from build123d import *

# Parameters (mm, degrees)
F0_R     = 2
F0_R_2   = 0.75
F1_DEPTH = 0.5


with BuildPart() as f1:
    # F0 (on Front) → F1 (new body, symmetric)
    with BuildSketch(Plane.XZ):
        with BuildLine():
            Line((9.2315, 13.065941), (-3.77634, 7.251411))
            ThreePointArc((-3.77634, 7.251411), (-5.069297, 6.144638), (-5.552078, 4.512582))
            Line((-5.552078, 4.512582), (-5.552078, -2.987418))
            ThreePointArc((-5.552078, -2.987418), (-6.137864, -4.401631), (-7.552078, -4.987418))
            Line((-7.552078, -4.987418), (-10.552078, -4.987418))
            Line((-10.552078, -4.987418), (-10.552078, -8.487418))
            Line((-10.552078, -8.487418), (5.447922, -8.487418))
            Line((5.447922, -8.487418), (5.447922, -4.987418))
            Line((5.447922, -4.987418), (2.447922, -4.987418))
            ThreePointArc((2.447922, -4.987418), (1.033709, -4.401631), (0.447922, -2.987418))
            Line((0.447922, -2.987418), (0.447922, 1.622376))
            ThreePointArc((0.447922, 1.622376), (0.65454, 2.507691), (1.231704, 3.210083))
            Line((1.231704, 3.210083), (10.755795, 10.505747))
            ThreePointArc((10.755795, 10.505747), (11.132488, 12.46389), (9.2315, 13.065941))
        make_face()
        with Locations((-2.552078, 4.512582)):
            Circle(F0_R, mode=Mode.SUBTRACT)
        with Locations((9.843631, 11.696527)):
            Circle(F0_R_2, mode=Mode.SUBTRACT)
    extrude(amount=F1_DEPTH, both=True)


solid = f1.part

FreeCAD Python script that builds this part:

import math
import FreeCAD as App
import Part
import Sketcher
from FreeCAD import Vector
Q = App.Units.Quantity

doc = App.newDocument("Part")
body = doc.addObject("PartDesign::Body", "Body")

# Sketch on XZ plane
sketch1 = doc.addObject("Sketcher::SketchObject", "Sketch")
body.addObject(sketch1)
sketch1.AttachmentSupport = (doc.XZ_Plane, [""])
sketch1.MapMode = "FlatFace"
sketch1.addGeometry([
    Part.LineSegment(Vector(9.2315, 13.065941, 0), Vector(-3.77634, 7.251411, 0)),  # 0
    Part.ArcOfCircle(Part.Circle(Vector(-2.552076, 4.512581, 0), Vector(0, 0, 1), 3.000002), math.radians(114.08477), math.radians(179.999976)),  # 1
    Part.LineSegment(Vector(-5.552078, 4.512582, 0), Vector(-5.552078, -2.987418, 0)),  # 2
    Part.ArcOfCircle(Part.Circle(Vector(-7.552078, -2.987418, 0), Vector(0, 0, 1), 2), math.radians(-89.999994), math.radians(-0.000006)),  # 3
    Part.LineSegment(Vector(-7.552078, -4.987418, 0), Vector(-10.552078, -4.987418, 0)),  # 4
    Part.LineSegment(Vector(-10.552078, -4.987418, 0), Vector(-10.552078, -8.487418, 0)),  # 5
    Part.LineSegment(Vector(-10.552078, -8.487418, 0), Vector(5.447922, -8.487418, 0)),  # 6
    Part.LineSegment(Vector(5.447922, -8.487418, 0), Vector(5.447922, -4.987418, 0)),  # 7
    Part.LineSegment(Vector(5.447922, -4.987418, 0), Vector(2.447922, -4.987418, 0)),  # 8
    Part.ArcOfCircle(Part.Circle(Vector(2.447924, -2.987416, 0), Vector(0, 0, 1), 2.000002), math.radians(-179.999945), math.radians(-90.000055)),  # 9
    Part.LineSegment(Vector(0.447922, -2.987418, 0), Vector(0.447922, 1.622376, 0)),  # 10
    Part.ArcOfCircle(Part.Circle(Vector(2.447918, 1.622378, 0), Vector(0, 0, 1), 1.999996), math.radians(127.452842), math.radians(180.000053)),  # 11
    Part.LineSegment(Vector(1.231704, 3.210083, 0), Vector(10.755795, 10.505747, 0)),  # 12
    Part.ArcOfCircle(Part.Circle(Vector(9.843631, 11.696527, 0), Vector(0, 0, 1), 1.5), math.radians(-52.547062), math.radians(114.084728)),  # 13
    Part.Circle(Vector(-2.552078, 4.512582, 0), Vector(0, 0, 1), 2),  # 14
    Part.Circle(Vector(9.843631, 11.696527, 0), Vector(0, 0, 1), 0.75),  # 15
], False)
sketch1.addConstraint([
    Sketcher.Constraint("Coincident", 0, 2, 1, 1),
    Sketcher.Constraint("Coincident", 1, 2, 2, 1),
    Sketcher.Constraint("Coincident", 2, 2, 3, 2),
    Sketcher.Constraint("Coincident", 3, 1, 4, 1),
    Sketcher.Constraint("Coincident", 4, 2, 5, 1),
    Sketcher.Constraint("Coincident", 5, 2, 6, 1),
    Sketcher.Constraint("Coincident", 6, 2, 7, 1),
    Sketcher.Constraint("Coincident", 7, 2, 8, 1),
    Sketcher.Constraint("Coincident", 8, 2, 9, 2),
    Sketcher.Constraint("Coincident", 9, 1, 10, 1),
    Sketcher.Constraint("Coincident", 10, 2, 11, 2),
    Sketcher.Constraint("Coincident", 11, 1, 12, 1),
    Sketcher.Constraint("Coincident", 12, 2, 13, 1),
    Sketcher.Constraint("Coincident", 13, 2, 0, 1),
    Sketcher.Constraint("Vertical", 2),
    Sketcher.Constraint("Horizontal", 4),
    Sketcher.Constraint("Vertical", 5),
    Sketcher.Constraint("Horizontal", 6),
    Sketcher.Constraint("Vertical", 7),
    Sketcher.Constraint("Horizontal", 8),
    Sketcher.Constraint("Vertical", 10),
    Sketcher.Constraint("Coincident", 14, 3, 1, 3),
    Sketcher.Constraint("Coincident", 15, 3, 13, 3),
    Sketcher.Constraint("Diameter", 14, Q("4 mm")),
    Sketcher.Constraint("Radius", 3, Q("2 mm")),
    Sketcher.Constraint("Radius", 9, Q("2.000002 mm")),
    Sketcher.Constraint("Diameter", 15, Q("1.5 mm")),
    Sketcher.Constraint("Radius", 13, Q("1.5 mm")),
    Sketcher.Constraint("DistanceX", 4, 2, 4, 1, Q("3 mm")),
    Sketcher.Constraint("DistanceX", 6, 1, 6, 2, Q("16 mm")),
    Sketcher.Constraint("DistanceX", 8, 2, 8, 1, Q("3 mm")),
    Sketcher.Constraint("DistanceY", 2, 2, 2, 1, Q("7.5 mm")),
    Sketcher.Constraint("DistanceY", 5, 2, 5, 1, Q("3.5 mm")),
    Sketcher.Constraint("DistanceY", 7, 1, 7, 2, Q("3.5 mm")),
    Sketcher.Constraint("DistanceX", 1, 3, 9, 3, Q("5 mm")),
    Sketcher.Constraint("DistanceX", 3, 3, 14, 3, Q("5 mm")),
    Sketcher.Constraint("DistanceX", 3, 1, 2, 2, Q("2 mm")),
    Sketcher.Constraint("DistanceY", 3, 1, 2, 2, Q("2 mm")),
    Sketcher.Constraint("DistanceY", 8, 2, 9, 1, Q("2 mm")),
    Sketcher.Constraint("DistanceY", 3, 3, 1, 3, Q("7.499999 mm")),
    Sketcher.Constraint("Radius", 11, Q("1.999996 mm")),
    Sketcher.Constraint("DistanceX", -1, 1, 13, 2, Q("9.2315 mm")),
    Sketcher.Constraint("DistanceY", 11, 1, 14, 3, Q("1.302499 mm")),
    Sketcher.Constraint("Distance", 0, Q("14.248251 mm")),
    Sketcher.Constraint("DistanceY", 10, 1, 10, 2, Q("4.609794 mm")),
    Sketcher.Constraint("DistanceY", -1, 1, 1, 3, Q("4.512581 mm")),
    Sketcher.Constraint("DistanceX", 3, 3, -1, 1, Q("7.552078 mm")),
    Sketcher.Constraint("DistanceX", -1, 1, 13, 3, Q("9.843631 mm")),
    Sketcher.Constraint("DistanceX", 0, 2, -1, 1, Q("3.77634 mm")),
    Sketcher.Constraint("DistanceY", 11, 3, 13, 3, Q("10.074149 mm")),
    Sketcher.Constraint("DistanceY", 12, 2, 13, 3, Q("1.19078 mm")),
])
pad1 = doc.addObject("PartDesign::Pad", "Pad")
body.addObject(pad1)
pad1.Profile = sketch1
pad1.Length = 1
pad1.Midplane = True

doc.recompute()
